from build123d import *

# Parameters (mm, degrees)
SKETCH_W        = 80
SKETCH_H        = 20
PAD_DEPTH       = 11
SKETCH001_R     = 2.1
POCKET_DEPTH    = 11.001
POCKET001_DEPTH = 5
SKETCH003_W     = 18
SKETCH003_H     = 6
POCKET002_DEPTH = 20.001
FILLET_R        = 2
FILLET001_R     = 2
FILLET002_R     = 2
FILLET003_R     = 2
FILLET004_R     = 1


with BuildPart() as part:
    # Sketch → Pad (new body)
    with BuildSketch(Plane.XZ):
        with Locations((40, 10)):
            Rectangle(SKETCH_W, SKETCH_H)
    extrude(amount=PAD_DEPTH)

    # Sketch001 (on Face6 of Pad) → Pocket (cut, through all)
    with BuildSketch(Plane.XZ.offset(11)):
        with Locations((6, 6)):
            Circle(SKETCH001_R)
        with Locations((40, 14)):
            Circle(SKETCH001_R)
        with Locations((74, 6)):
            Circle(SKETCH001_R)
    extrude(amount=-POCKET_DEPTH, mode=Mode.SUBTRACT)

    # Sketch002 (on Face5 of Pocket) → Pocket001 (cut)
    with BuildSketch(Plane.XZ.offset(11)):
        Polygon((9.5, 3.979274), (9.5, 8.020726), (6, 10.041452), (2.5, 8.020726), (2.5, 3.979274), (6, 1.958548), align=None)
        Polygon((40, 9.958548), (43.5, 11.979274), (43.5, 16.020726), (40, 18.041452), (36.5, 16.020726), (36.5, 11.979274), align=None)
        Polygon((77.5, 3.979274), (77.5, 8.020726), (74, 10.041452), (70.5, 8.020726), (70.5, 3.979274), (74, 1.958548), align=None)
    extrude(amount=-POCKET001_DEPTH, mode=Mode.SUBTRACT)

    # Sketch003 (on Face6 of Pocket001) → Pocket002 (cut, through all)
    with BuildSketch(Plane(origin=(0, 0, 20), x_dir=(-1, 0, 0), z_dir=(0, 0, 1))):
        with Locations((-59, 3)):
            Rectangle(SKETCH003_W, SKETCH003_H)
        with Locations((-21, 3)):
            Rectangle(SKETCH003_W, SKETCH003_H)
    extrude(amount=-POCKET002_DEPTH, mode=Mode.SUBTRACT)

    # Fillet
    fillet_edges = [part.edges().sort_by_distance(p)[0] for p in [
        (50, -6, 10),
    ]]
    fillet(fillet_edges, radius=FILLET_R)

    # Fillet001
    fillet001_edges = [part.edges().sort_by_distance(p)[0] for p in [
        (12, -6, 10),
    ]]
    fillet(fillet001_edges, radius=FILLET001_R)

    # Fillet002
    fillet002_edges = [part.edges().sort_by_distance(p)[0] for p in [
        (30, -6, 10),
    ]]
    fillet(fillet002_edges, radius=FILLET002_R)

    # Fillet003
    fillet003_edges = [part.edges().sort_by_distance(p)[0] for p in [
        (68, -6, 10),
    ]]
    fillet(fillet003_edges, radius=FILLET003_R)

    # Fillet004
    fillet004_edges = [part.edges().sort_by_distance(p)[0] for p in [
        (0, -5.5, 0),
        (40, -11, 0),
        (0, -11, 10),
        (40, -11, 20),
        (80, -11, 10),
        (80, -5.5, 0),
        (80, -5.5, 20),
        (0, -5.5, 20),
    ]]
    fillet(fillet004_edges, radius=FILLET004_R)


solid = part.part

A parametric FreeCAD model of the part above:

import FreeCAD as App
import Part
import Sketcher
Q = App.Units.Quantity


def edges_at(feature, points):
    """Names of the edges that pass closest to the given points."""
    edges = feature.Shape.Edges
    near = lambda p: min(range(len(edges)), key=lambda i: edges[i].distToShape(Part.Vertex(*p))[0])
    return sorted({f"Edge{near(p) + 1}" for p in points})

doc = App.newDocument("Part")
body = doc.addObject("PartDesign::Body", "Body")

# Sketch on XZ plane
sketch1 = body.newObject("Sketcher::SketchObject", "Sketch")
sketch1.AttachmentSupport = (doc.getObject("XZ_Plane"), [""])
sketch1.MapMode = "FlatFace"
sketch1.addGeometry(Part.LineSegment(App.Vector(0, 20, 0), App.Vector(0, 0, 0)), False)
sketch1.addGeometry(Part.LineSegment(App.Vector(0, 0, 0), App.Vector(80, 0, 0)), False)
sketch1.addGeometry(Part.LineSegment(App.Vector(80, 0, 0), App.Vector(80, 20, 0)), False)
sketch1.addGeometry(Part.LineSegment(App.Vector(80, 20, 0), App.Vector(0, 20, 0)), False)
sketch1.addConstraint(Sketcher.Constraint("Coincident", 0, 2, 1, 1))
sketch1.addConstraint(Sketcher.Constraint("Coincident", 1, 2, 2, 1))
sketch1.addConstraint(Sketcher.Constraint("Coincident", 2, 2, 3, 1))
sketch1.addConstraint(Sketcher.Constraint("Coincident", 3, 2, 0, 1))
sketch1.addConstraint(Sketcher.Constraint("Vertical", 0))
sketch1.addConstraint(Sketcher.Constraint("Horizontal", 1))
sketch1.addConstraint(Sketcher.Constraint("Vertical", 2))
sketch1.addConstraint(Sketcher.Constraint("Horizontal", 3))
sketch1.addConstraint(Sketcher.Constraint("Coincident", 0, 2, -1, 1))
sketch1.addConstraint(Sketcher.Constraint("DistanceX", 1, 1, 1, 2, 80.0))
sketch1.addConstraint(Sketcher.Constraint("DistanceY", 0, 2, 0, 1, 20.0))
pad1 = body.newObject("PartDesign::Pad", "Pad")
pad1.Profile = sketch1
pad1.Length = 11

# Sketch on XZ plane
sketch2 = body.newObject("Sketcher::SketchObject", "Sketch001")
sketch2.AttachmentSupport = (doc.getObject("XZ_Plane"), [""])
sketch2.MapMode = "FlatFace"
sketch2.AttachmentOffset = App.Placement(App.Vector(0, 0, 11), App.Rotation())
sketch2.addGeometry(Part.Circle(App.Vector(6, 6, 0), App.Vector(0, 0, 1), 2.1), False)
sketch2.addGeometry(Part.Circle(App.Vector(40, 14, 0), App.Vector(0, 0, 1), 2.1), False)
sketch2.addGeometry(Part.Circle(App.Vector(74, 6, 0), App.Vector(0, 0, 1), 2.1), False)
sketch2.addConstraint(Sketcher.Constraint("Equal", 0, 1))
sketch2.addConstraint(Sketcher.Constraint("Equal", 1, 2))
sketch2.addConstraint(Sketcher.Constraint("Horizontal", 0, 3, 2, 3))
sketch2.addConstraint(Sketcher.Constraint("Diameter", 0, 4.2))
sketch2.addConstraint(Sketcher.Constraint("DistanceX", -1, 1, 0, 3, 6.0))
sketch2.addConstraint(Sketcher.Constraint("DistanceY", -1, 1, 0, 3, 6.0))
sketch2.addConstraint(Sketcher.Constraint("DistanceX", -1, 1, 1, 3, 40.0))
sketch2.addConstraint(Sketcher.Constraint("DistanceY", -1, 1, 1, 3, 14.0))
sketch2.addConstraint(Sketcher.Constraint("DistanceX", -1, 1, 2, 3, 74.0))
pocket1 = body.newObject("PartDesign::Pocket", "Pocket")
pocket1.Profile = sketch2
pocket1.Type = "ThroughAll"

# Sketch on XZ plane
sketch3 = body.newObject("Sketcher::SketchObject", "Sketch002")
sketch3.AttachmentSupport = (doc.getObject("XZ_Plane"), [""])
sketch3.MapMode = "FlatFace"
sketch3.AttachmentOffset = App.Placement(App.Vector(0, 0, 11), App.Rotation())
sketch3.addGeometry(Part.LineSegment(App.Vector(9.5, 4, 0), App.Vector(9.5, 8, 0)), False)
sketch3.addGeometry(Part.LineSegment(App.Vector(9.5, 8, 0), App.Vector(6, 10, 0)), False)
sketch3.addGeometry(Part.LineSegment(App.Vector(6, 10, 0), App.Vector(2.5, 8, 0)), False)
sketch3.addGeometry(Part.LineSegment(App.Vector(2.5, 8, 0), App.Vector(2.5, 4, 0)), False)
sketch3.addGeometry(Part.LineSegment(App.Vector(2.5, 4, 0), App.Vector(6, 2, 0)), False)
sketch3.addGeometry(Part.LineSegment(App.Vector(6, 2, 0), App.Vector(9.5, 4, 0)), False)
sketch3.addGeometry(Part.LineSegment(App.Vector(40, 10, 0), App.Vector(43.5, 12, 0)), False)
sketch3.addGeometry(Part.LineSegment(App.Vector(43.5, 12, 0), App.Vector(43.5, 16, 0)), False)
sketch3.addGeometry(Part.LineSegment(App.Vector(43.5, 16, 0), App.Vector(40, 18, 0)), False)
sketch3.addGeometry(Part.LineSegment(App.Vector(40, 18, 0), App.Vector(36.5, 16, 0)), False)
sketch3.addGeometry(Part.LineSegment(App.Vector(36.5, 16, 0), App.Vector(36.5, 12, 0)), False)
sketch3.addGeometry(Part.LineSegment(App.Vector(36.5, 12, 0), App.Vector(40, 10, 0)), False)
sketch3.addGeometry(Part.LineSegment(App.Vector(77.5, 4, 0), App.Vector(77.5, 8, 0)), False)
sketch3.addGeometry(Part.LineSegment(App.Vector(77.5, 8, 0), App.Vector(74, 10, 0)), False)
sketch3.addGeometry(Part.LineSegment(App.Vector(74, 10, 0), App.Vector(70.5, 8, 0)), False)
sketch3.addGeometry(Part.LineSegment(App.Vector(70.5, 8, 0), App.Vector(70.5, 4, 0)), False)
sketch3.addGeometry(Part.LineSegment(App.Vector(70.5, 4, 0), App.Vector(74, 2, 0)), False)
sketch3.addGeometry(Part.LineSegment(App.Vector(74, 2, 0), App.Vector(77.5, 4, 0)), False)
sketch3.addConstraint(Sketcher.Constraint("Coincident", 0, 2, 1, 1))
sketch3.addConstraint(Sketcher.Constraint("Coincident", 1, 2, 2, 1))
sketch3.addConstraint(Sketcher.Constraint("Coincident", 2, 2, 3, 1))
sketch3.addConstraint(Sketcher.Constraint("Coincident", 3, 2, 4, 1))
sketch3.addConstraint(Sketcher.Constraint("Coincident", 4, 2, 5, 1))
sketch3.addConstraint(Sketcher.Constraint("Coincident", 5, 2, 0, 1))
sketch3.addConstraint(Sketcher.Constraint("Coincident", 6, 2, 7, 1))
sketch3.addConstraint(Sketcher.Constraint("Coincident", 7, 2, 8, 1))
sketch3.addConstraint(Sketcher.Constraint("Coincident", 8, 2, 9, 1))
sketch3.addConstraint(Sketcher.Constraint("Coincident", 9, 2, 10, 1))
sketch3.addConstraint(Sketcher.Constraint("Coincident", 10, 2, 11, 1))
sketch3.addConstraint(Sketcher.Constraint("Coincident", 11, 2, 6, 1))
sketch3.addConstraint(Sketcher.Constraint("Coincident", 12, 2, 13, 1))
sketch3.addConstraint(Sketcher.Constraint("Coincident", 13, 2, 14, 1))
sketch3.addConstraint(Sketcher.Constraint("Coincident", 14, 2, 15, 1))
sketch3.addConstraint(Sketcher.Constraint("Coincident", 15, 2, 16, 1))
sketch3.addConstraint(Sketcher.Constraint("Coincident", 16, 2, 17, 1))
sketch3.addConstraint(Sketcher.Constraint("Coincident", 17, 2, 12, 1))
sketch3.addConstraint(Sketcher.Constraint("Vertical", 0))
sketch3.addConstraint(Sketcher.Constraint("Vertical", 3))
sketch3.addConstraint(Sketcher.Constraint("Vertical", 7))
sketch3.addConstraint(Sketcher.Constraint("Vertical", 10))
sketch3.addConstraint(Sketcher.Constraint("Vertical", 12))
sketch3.addConstraint(Sketcher.Constraint("Vertical", 15))
sketch3.addConstraint(Sketcher.Constraint("Parallel", 1, 4))
sketch3.addConstraint(Sketcher.Constraint("Parallel", 2, 5))
sketch3.addConstraint(Sketcher.Constraint("Parallel", 5, 6))
sketch3.addConstraint(Sketcher.Constraint("Parallel", 4, 8))
sketch3.addConstraint(Sketcher.Constraint("Parallel", 6, 9))
sketch3.addConstraint(Sketcher.Constraint("Parallel", 8, 11))
sketch3.addConstraint(Sketcher.Constraint("Parallel", 11, 13))
sketch3.addConstraint(Sketcher.Constraint("Parallel", 9, 14))
sketch3.addConstraint(Sketcher.Constraint("Parallel", 13, 16))
sketch3.addConstraint(Sketcher.Constraint("Parallel", 14, 17))
sketch3.addConstraint(Sketcher.Constraint("Horizontal", 0, 2, 2, 2))
sketch3.addConstraint(Sketcher.Constraint("Horizontal", 3, 2, 5, 2))
sketch3.addConstraint(Sketcher.Constraint("Horizontal", 7, 2, 9, 2))
sketch3.addConstraint(Sketcher.Constraint("Horizontal", 6, 2, 10, 2))
sketch3.addConstraint(Sketcher.Constraint("Horizontal", 2, 2, 12, 2))
sketch3.addConstraint(Sketcher.Constraint("Horizontal", 1, 2, 13, 2))
sketch3.addConstraint(Sketcher.Constraint("Horizontal", 12, 2, 14, 2))
sketch3.addConstraint(Sketcher.Constraint("Horizontal", 5, 2, 15, 2))
sketch3.addConstraint(Sketcher.Constraint("Horizontal", 4, 2, 16, 2))
sketch3.addConstraint(Sketcher.Constraint("Vertical", 1, 2, 4, 2))
sketch3.addConstraint(Sketcher.Constraint("Equal", 3, 7))
sketch3.addConstraint(Sketcher.Constraint("Equal", 5, 6))
sketch3.addConstraint(Sketcher.Constraint("Angle", 1, Q("149.999999 deg")))
sketch3.addConstraint(Sketcher.Constraint("DistanceX", -1, 1, 1, 2, 6.0))
sketch3.addConstraint(Sketcher.Constraint("DistanceX", -1, 1, 8, 2, 40.0))
sketch3.addConstraint(Sketcher.Constraint("DistanceX", -1, 1, 13, 2, 74.0))
sketch3.addConstraint(Sketcher.Constraint("DistanceX", 2, 2, 0, 2, 7.0))
sketch3.addConstraint(Sketcher.Constraint("DistanceY", 5, 2, 6, 2, 8.0))
sketch3.addConstraint(Sketcher.Constraint("DistanceY", 0, 1, 0, 2, 4.041452))
sketch3.addConstraint(Sketcher.Constraint("DistanceY", -1, 1, 8, 2, 18.041452))
pocket2 = body.newObject("PartDesign::Pocket", "Pocket001")
pocket2.Profile = sketch3
pocket2.Length = 5

# Sketch on XY plane
sketch4 = body.newObject("Sketcher::SketchObject", "Sketch003")
sketch4.AttachmentSupport = (doc.getObject("XY_Plane"), [""])
sketch4.MapMode = "FlatFace"
sketch4.AttachmentOffset = App.Placement(App.Vector(0, 0, 20), App.Rotation())
sketch4.addGeometry(Part.LineSegment(App.Vector(68, -6, 0), App.Vector(68, 0, 0)), False)
sketch4.addGeometry(Part.LineSegment(App.Vector(68, 0, 0), App.Vector(50, 0, 0)), False)
sketch4.addGeometry(Part.LineSegment(App.Vector(50, 0, 0), App.Vector(50, -6, 0)), False)
sketch4.addGeometry(Part.LineSegment(App.Vector(50, -6, 0), App.Vector(68, -6, 0)), False)
sketch4.addGeometry(Part.LineSegment(App.Vector(30, -6, 0), App.Vector(30, 0, 0)), False)
sketch4.addGeometry(Part.LineSegment(App.Vector(30, 0, 0), App.Vector(12, 0, 0)), False)
sketch4.addGeometry(Part.LineSegment(App.Vector(12, 0, 0), App.Vector(12, -6, 0)), False)
sketch4.addGeometry(Part.LineSegment(App.Vector(12, -6, 0), App.Vector(30, -6, 0)), False)
sketch4.addConstraint(Sketcher.Constraint("Coincident", 0, 2, 1, 1))
sketch4.addConstraint(Sketcher.Constraint("Coincident", 1, 2, 2, 1))
sketch4.addConstraint(Sketcher.Constraint("Coincident", 2, 2, 3, 1))
sketch4.addConstraint(Sketcher.Constraint("Coincident", 3, 2, 0, 1))
sketch4.addConstraint(Sketcher.Constraint("Coincident", 4, 2, 5, 1))
sketch4.addConstraint(Sketcher.Constraint("Coincident", 5, 2, 6, 1))
sketch4.addConstraint(Sketcher.Constraint("Coincident", 6, 2, 7, 1))
sketch4.addConstraint(Sketcher.Constraint("Coincident", 7, 2, 4, 1))
sketch4.addConstraint(Sketcher.Constraint("Vertical", 0))
sketch4.addConstraint(Sketcher.Constraint("Horizontal", 1))
sketch4.addConstraint(Sketcher.Constraint("Vertical", 2))
sketch4.addConstraint(Sketcher.Constraint("Horizontal", 3))
sketch4.addConstraint(Sketcher.Constraint("Vertical", 4))
sketch4.addConstraint(Sketcher.Constraint("Horizontal", 5))
sketch4.addConstraint(Sketcher.Constraint("Vertical", 6))
sketch4.addConstraint(Sketcher.Constraint("Horizontal", 7))
sketch4.addConstraint(Sketcher.Constraint("PointOnObject", 0, 2, -1))
sketch4.addConstraint(Sketcher.Constraint("PointOnObject", 4, 2, -1))
sketch4.addConstraint(Sketcher.Constraint("Horizontal", 3, 2, 6, 2))
sketch4.addConstraint(Sketcher.Constraint("Equal", 3, 5))
sketch4.addConstraint(Sketcher.Constraint("DistanceX", 1, 2, 1, 1, 18.0))
sketch4.addConstraint(Sketcher.Constraint("DistanceY", 0, 1, 0, 2, 6.0))
sketch4.addConstraint(Sketcher.Constraint("DistanceX", -1, 1, 0, 2, 68.0))
sketch4.addConstraint(Sketcher.Constraint("DistanceX", -1, 1, 4, 2, 30.0))
pocket3 = body.newObject("PartDesign::Pocket", "Pocket002")
pocket3.Profile = sketch4
pocket3.Type = "ThroughAll"
doc.recompute()

fillet = body.newObject("PartDesign::Fillet", "Fillet")
fillet.Base = (pocket3, edges_at(pocket3, [(50, -6, 10)]))
fillet.Radius = 2
doc.recompute()

fillet2 = body.newObject("PartDesign::Fillet", "Fillet001")
fillet2.Base = (fillet, edges_at(fillet, [(12, -6, 10)]))
fillet2.Radius = 2
doc.recompute()

fillet3 = body.newObject("PartDesign::Fillet", "Fillet002")
fillet3.Base = (fillet2, edges_at(fillet2, [(30, -6, 10)]))
fillet3.Radius = 2
doc.recompute()

fillet4 = body.newObject("PartDesign::Fillet", "Fillet003")
fillet4.Base = (fillet3, edges_at(fillet3, [(68, -6, 10)]))
fillet4.Radius = 2
doc.recompute()

fillet5 = body.newObject("PartDesign::Fillet", "Fillet004")
fillet5.Base = (fillet4, edges_at(fillet4, [
    (0, -5.5, 0),
    (40, -11, 0),
    (0, -11, 10),
    (40, -11, 20),
    (80, -11, 10),
    (80, -5.5, 0),
    (80, -5.5, 20),
    (0, -5.5, 20),
]))
fillet5.Radius = 1

doc.recompute()
